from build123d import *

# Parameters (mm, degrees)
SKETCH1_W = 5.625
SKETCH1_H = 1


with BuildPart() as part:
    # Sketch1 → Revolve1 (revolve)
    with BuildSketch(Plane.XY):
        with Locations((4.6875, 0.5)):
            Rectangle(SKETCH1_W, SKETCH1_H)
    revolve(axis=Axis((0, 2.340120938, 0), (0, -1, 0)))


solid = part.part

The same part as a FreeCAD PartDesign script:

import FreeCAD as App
import Part
import Sketcher
from FreeCAD import Vector


def add_polygon(sketch, points):
    """Adds a closed chain of lines whose ends are joined by coincident constraints."""
    first, n = sketch.GeometryCount, len(points)
    for a, b in zip(points, points[1:] + points[:1]):
        sketch.addGeometry(Part.LineSegment(App.Vector(*a, 0), App.Vector(*b, 0)), False)
    for i in range(n):
        sketch.addConstraint(Sketcher.Constraint("Coincident", first + i, 2, first + (i + 1) % n, 1))

doc = App.newDocument("Part")
body = doc.addObject("PartDesign::Body", "Body")

# Sketch on XY plane
sketch1 = doc.addObject("Sketcher::SketchObject", "Sketch")
body.addObject(sketch1)
sketch1.AttachmentSupport = (doc.XY_Plane, [""])
sketch1.MapMode = "FlatFace"
add_polygon(sketch1, [(1.9, 1), (1.9, 0), (7.5, 0), (7.5, 1)])  # lines 0-3
sketch1.addConstraint([
    Sketcher.Constraint("Vertical", 0),
    Sketcher.Constraint("Horizontal", 1),
    Sketcher.Constraint("Vertical", 2),
    Sketcher.Constraint("Horizontal", 3),
    Sketcher.Constraint("PointOnObject", 0, 2, -1),
    Sketcher.Constraint("DistanceY", 0, 2, 0, 1, 1.0),
    Sketcher.Constraint("DistanceX", -1, 1, 1, 2, 7.5),
    Sketcher.Constraint("DistanceX", 1, 1, 1, 2, 5.625),
])
revolution = doc.addObject("PartDesign::Revolution", "Revolution")
body.addObject(revolution)
revolution.Profile = sketch1
revolution.ReferenceAxis = (sketch1, ["V_Axis"])
revolution.Angle = 360

doc.recompute()
